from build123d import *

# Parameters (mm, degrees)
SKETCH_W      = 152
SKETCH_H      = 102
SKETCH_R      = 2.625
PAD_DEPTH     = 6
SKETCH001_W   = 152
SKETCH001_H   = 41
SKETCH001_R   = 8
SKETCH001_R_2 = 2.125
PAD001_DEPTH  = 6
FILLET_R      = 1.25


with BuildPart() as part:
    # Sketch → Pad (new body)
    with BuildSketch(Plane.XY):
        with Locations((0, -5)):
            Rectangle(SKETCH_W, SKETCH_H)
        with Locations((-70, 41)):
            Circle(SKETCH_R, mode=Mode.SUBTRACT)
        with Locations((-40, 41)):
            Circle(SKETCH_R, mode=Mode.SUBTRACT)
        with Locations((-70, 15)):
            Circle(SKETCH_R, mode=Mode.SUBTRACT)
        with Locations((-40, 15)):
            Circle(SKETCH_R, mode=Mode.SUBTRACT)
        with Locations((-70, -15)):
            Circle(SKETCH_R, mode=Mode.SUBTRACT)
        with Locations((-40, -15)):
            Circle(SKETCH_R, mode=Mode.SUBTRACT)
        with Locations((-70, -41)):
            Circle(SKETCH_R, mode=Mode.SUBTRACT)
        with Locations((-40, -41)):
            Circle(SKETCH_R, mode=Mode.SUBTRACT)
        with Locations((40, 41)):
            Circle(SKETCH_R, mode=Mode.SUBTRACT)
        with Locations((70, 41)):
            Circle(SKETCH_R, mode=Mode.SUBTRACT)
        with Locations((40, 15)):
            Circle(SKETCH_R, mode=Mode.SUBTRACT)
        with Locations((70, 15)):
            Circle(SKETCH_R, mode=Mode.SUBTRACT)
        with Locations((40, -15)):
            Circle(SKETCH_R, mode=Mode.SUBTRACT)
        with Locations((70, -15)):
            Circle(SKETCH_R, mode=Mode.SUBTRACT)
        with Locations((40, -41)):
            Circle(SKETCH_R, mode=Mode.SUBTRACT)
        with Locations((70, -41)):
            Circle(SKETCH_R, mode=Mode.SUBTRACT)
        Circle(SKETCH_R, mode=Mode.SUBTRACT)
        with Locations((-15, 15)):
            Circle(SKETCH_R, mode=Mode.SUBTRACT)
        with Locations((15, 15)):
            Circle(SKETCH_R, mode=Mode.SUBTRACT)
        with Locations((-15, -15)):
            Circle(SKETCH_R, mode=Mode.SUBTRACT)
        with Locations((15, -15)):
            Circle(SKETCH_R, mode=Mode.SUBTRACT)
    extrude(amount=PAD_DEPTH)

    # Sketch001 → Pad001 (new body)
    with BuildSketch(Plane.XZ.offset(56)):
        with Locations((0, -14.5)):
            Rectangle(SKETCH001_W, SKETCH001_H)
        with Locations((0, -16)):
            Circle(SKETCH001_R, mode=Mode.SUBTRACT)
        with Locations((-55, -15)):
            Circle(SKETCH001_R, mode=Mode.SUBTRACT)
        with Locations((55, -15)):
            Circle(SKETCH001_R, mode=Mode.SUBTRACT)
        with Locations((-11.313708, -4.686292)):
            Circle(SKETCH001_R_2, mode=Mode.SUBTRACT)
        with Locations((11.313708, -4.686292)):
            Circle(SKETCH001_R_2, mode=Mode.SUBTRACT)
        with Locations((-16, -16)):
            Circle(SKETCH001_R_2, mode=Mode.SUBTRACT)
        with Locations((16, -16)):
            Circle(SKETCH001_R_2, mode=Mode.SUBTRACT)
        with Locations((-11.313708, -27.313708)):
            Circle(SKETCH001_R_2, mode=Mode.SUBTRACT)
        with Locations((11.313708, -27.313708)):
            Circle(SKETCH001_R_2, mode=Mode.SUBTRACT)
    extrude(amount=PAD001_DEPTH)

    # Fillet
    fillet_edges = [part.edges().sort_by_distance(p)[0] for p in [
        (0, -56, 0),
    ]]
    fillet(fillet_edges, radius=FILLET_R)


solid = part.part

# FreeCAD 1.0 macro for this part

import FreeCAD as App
import Part
import Sketcher

V = App.Vector
Q = App.Units.Quantity


def edges_at(feature, points):
    """Names of the edges that pass closest to the given points."""
    edges = feature.Shape.Edges
    near = lambda p: min(range(len(edges)), key=lambda i: edges[i].distToShape(Part.Vertex(*p))[0])
    return sorted({f"Edge{near(p) + 1}" for p in points})


def add_polygon(sketch, points):
    """Adds a closed chain of lines whose ends are joined by coincident constraints."""
    first, n = sketch.GeometryCount, len(points)
    for a, b in zip(points, points[1:] + points[:1]):
        sketch.addGeometry(Part.LineSegment(App.Vector(*a, 0), App.Vector(*b, 0)), False)
    for i in range(n):
        sketch.addConstraint(Sketcher.Constraint("Coincident", first + i, 2, first + (i + 1) % n, 1))

doc = App.newDocument("Part")
params = doc.addObject("Spreadsheet::Sheet", "Params")
for row, (alias, value) in enumerate([
    ("sketch1_diameter", "5.25 mm"),
    ("sketch1_width", "152 mm"),
    ("sketch1_height", "102 mm"),
    ("pad1_length", "6 mm"),
    ("sketch2_diameter", "16 mm"),
    ("sketch2_diameter2", "4.25 mm"),
    ("sketch2_width", "152 mm"),
    ("sketch2_height", "41 mm"),
    ("pad2_length", "6 mm"),
    ("fillet_radius", "1.25 mm"),
], start=1):
    params.set(f"A{row}", alias)
    params.set(f"B{row}", "=" + value)
    params.setAlias(f"B{row}", alias)

body = doc.addObject("PartDesign::Body", "Body")

# Sketch on XY plane
sketch1 = doc.addObject("Sketcher::SketchObject", "Sketch")
body.addObject(sketch1)
sketch1.AttachmentSupport = (doc.XY_Plane, [""])
sketch1.MapMode = "FlatFace"
add_polygon(sketch1, [(-76, 46), (-76, -56), (76, -56), (76, 46)])  # lines 0-3
sketch1.addGeometry(Part.Circle(V(-70, -41, 0), V(0, 0, 1), 2.6), False)  # 4
sketch1.addGeometry(Part.Circle(V(-40, -41, 0), V(0, 0, 1), 2.6), False)  # 5
sketch1.addGeometry(Part.Circle(V(-70, -15, 0), V(0, 0, 1), 2.6), False)  # 6
sketch1.addGeometry(Part.Circle(V(-40, -15, 0), V(0, 0, 1), 2.6), False)  # 7
sketch1.addGeometry(Part.Circle(V(-15, -15, 0), V(0, 0, 1), 2.6), False)  # 8
sketch1.addGeometry(Part.Circle(V(40, -41, 0), V(0, 0, 1), 2.6), False)  # 9
sketch1.addGeometry(Part.Circle(V(70, -41, 0), V(0, 0, 1), 2.6), False)  # 10
sketch1.addGeometry(Part.Circle(V(15, -15, 0), V(0, 0, 1), 2.6), False)  # 11
sketch1.addGeometry(Part.Circle(V(40, -15, 0), V(0, 0, 1), 2.6), False)  # 12
sketch1.addGeometry(Part.Circle(V(70, -15, 0), V(0, 0, 1), 2.6), False)  # 13
sketch1.addGeometry(Part.Circle(V(-70, 15, 0), V(0, 0, 1), 2.6), False)  # 14
sketch1.addGeometry(Part.Circle(V(-40, 15, 0), V(0, 0, 1), 2.6), False)  # 15
sketch1.addGeometry(Part.Circle(V(-15, 15, 0), V(0, 0, 1), 2.6), False)  # 16
sketch1.addGeometry(Part.Circle(V(-70, 41, 0), V(0, 0, 1), 2.6), False)  # 17
sketch1.addGeometry(Part.Circle(V(-40, 41, 0), V(0, 0, 1), 2.6), False)  # 18
sketch1.addGeometry(Part.Circle(V(0, 0, 0), V(0, 0, 1), 2.6), False)  # 19
sketch1.addGeometry(Part.Circle(V(15, 15, 0), V(0, 0, 1), 2.6), False)  # 20
sketch1.addGeometry(Part.Circle(V(40, 15, 0), V(0, 0, 1), 2.6), False)  # 21
sketch1.addGeometry(Part.Circle(V(70, 15, 0), V(0, 0, 1), 2.6), False)  # 22
sketch1.addGeometry(Part.Circle(V(40, 41, 0), V(0, 0, 1), 2.6), False)  # 23
sketch1.addGeometry(Part.Circle(V(70, 41, 0), V(0, 0, 1), 2.6), False)  # 24
sketch1.addConstraint(Sketcher.Constraint("Vertical", 0))
sketch1.addConstraint(Sketcher.Constraint("Horizontal", 1))
sketch1.addConstraint(Sketcher.Constraint("Vertical", 2))
sketch1.addConstraint(Sketcher.Constraint("Horizontal", 3))
sketch1.addConstraint(Sketcher.Constraint("Coincident", 19, 3, -1, 1))
sketch1.addConstraint(Sketcher.Constraint("Equal", 4, 5))
sketch1.addConstraint(Sketcher.Constraint("Equal", 5, 6))
sketch1.addConstraint(Sketcher.Constraint("Equal", 6, 7))
sketch1.addConstraint(Sketcher.Constraint("Equal", 7, 8))
sketch1.addConstraint(Sketcher.Constraint("Equal", 8, 9))
sketch1.addConstraint(Sketcher.Constraint("Equal", 9, 10))
sketch1.addConstraint(Sketcher.Constraint("Equal", 10, 11))
sketch1.addConstraint(Sketcher.Constraint("Equal", 11, 12))
sketch1.addConstraint(Sketcher.Constraint("Equal", 12, 13))
sketch1.addConstraint(Sketcher.Constraint("Equal", 13, 14))
sketch1.addConstraint(Sketcher.Constraint("Equal", 14, 15))
sketch1.addConstraint(Sketcher.Constraint("Equal", 15, 16))
sketch1.addConstraint(Sketcher.Constraint("Equal", 16, 17))
sketch1.addConstraint(Sketcher.Constraint("Equal", 17, 18))
sketch1.addConstraint(Sketcher.Constraint("Equal", 18, 19))
sketch1.addConstraint(Sketcher.Constraint("Equal", 19, 20))
sketch1.addConstraint(Sketcher.Constraint("Equal", 20, 21))
sketch1.addConstraint(Sketcher.Constraint("Equal", 21, 22))
sketch1.addConstraint(Sketcher.Constraint("Equal", 22, 23))
sketch1.addConstraint(Sketcher.Constraint("Equal", 23, 24))
sketch1.addConstraint(Sketcher.Constraint("Symmetric", 13, 3, 14, 3, -1, 1))
sketch1.addConstraint(Sketcher.Constraint("Symmetric", 12, 3, 15, 3, -1, 1))
sketch1.addConstraint(Sketcher.Constraint("Symmetric", 11, 3, 16, 3, -1, 1))
sketch1.addConstraint(Sketcher.Constraint("Symmetric", 10, 3, 17, 3, -1, 1))
sketch1.addConstraint(Sketcher.Constraint("Symmetric", 9, 3, 18, 3, -1, 1))
sketch1.addConstraint(Sketcher.Constraint("Symmetric", 8, 3, 20, 3, -1, 1))
sketch1.addConstraint(Sketcher.Constraint("Symmetric", 7, 3, 21, 3, -1, 1))
sketch1.addConstraint(Sketcher.Constraint("Symmetric", 6, 3, 22, 3, -1, 1))
sketch1.addConstraint(Sketcher.Constraint("Symmetric", 5, 3, 23, 3, -1, 1))
sketch1.addConstraint(Sketcher.Constraint("Symmetric", 4, 3, 24, 3, -1, 1))
sketch1.addConstraint(Sketcher.Constraint("Symmetric", 5, 3, 9, 3, -2))
sketch1.addConstraint(Sketcher.Constraint("Symmetric", 4, 3, 10, 3, -2))
sketch1.addConstraint(Sketcher.Constraint("Symmetric", 8, 3, 11, 3, -2))
sketch1.addConstraint(Sketcher.Constraint("Symmetric", 7, 3, 12, 3, -2))
sketch1.addConstraint(Sketcher.Constraint("Symmetric", 6, 3, 13, 3, -2))
sketch1.addConstraint(Sketcher.Constraint("Horizontal", 4, 3, 5, 3))
sketch1.addConstraint(Sketcher.Constraint("Horizontal", 6, 3, 7, 3))
sketch1.addConstraint(Sketcher.Constraint("Horizontal", 7, 3, 8, 3))
sketch1.addConstraint(Sketcher.Constraint("Vertical", 4, 3, 6, 3))
sketch1.addConstraint(Sketcher.Constraint("Vertical", 5, 3, 7, 3))
sketch1.addConstraint(Sketcher.Constraint("Diameter", 4, Q("5.25 mm")))
sketch1.addConstraint(Sketcher.Constraint("DistanceX", 1, 1, 1, 2, Q("152 mm")))
sketch1.addConstraint(Sketcher.Constraint("DistanceY", 0, 2, 0, 1, Q("102 mm")))
sketch1.addConstraint(Sketcher.Constraint("DistanceX", 4, 3, -1, 1, Q("70 mm")))
sketch1.addConstraint(Sketcher.Constraint("DistanceY", 4, 3, -1, 1, Q("41 mm")))
sketch1.addConstraint(Sketcher.Constraint("DistanceX", 5, 3, -1, 1, Q("40 mm")))
sketch1.addConstraint(Sketcher.Constraint("DistanceY", 6, 3, -1, 1, Q("15 mm")))
sketch1.addConstraint(Sketcher.Constraint("DistanceX", 8, 3, -1, 1, Q("15 mm")))
sketch1.addConstraint(Sketcher.Constraint("DistanceX", 0, 2, -1, 1, Q("76 mm")))
sketch1.addConstraint(Sketcher.Constraint("DistanceY", 0, 2, -1, 1, Q("56 mm")))
sketch1.setExpression("Constraints[49]", "Params.sketch1_diameter")
sketch1.setExpression("Constraints[50]", "Params.sketch1_width")
sketch1.setExpression("Constraints[51]", "Params.sketch1_height")
pad1 = doc.addObject("PartDesign::Pad", "Pad")
body.addObject(pad1)
pad1.Profile = sketch1
pad1.setExpression("Length", "Params.pad1_length")

# Sketch on XZ plane
sketch2 = doc.addObject("Sketcher::SketchObject", "Sketch001")
body.addObject(sketch2)
sketch2.AttachmentSupport = (doc.XZ_Plane, [""])
sketch2.MapMode = "FlatFace"
sketch2.AttachmentOffset = App.Placement(V(0, 0, 56), App.Rotation())
add_polygon(sketch2, [(-76, 6), (-76, -35), (76, -35), (76, 6)])  # lines 0-3
sketch2.addGeometry(Part.Circle(V(-11.3, -27.3, 0), V(0, 0, 1), 2.1), False)  # 4
sketch2.addGeometry(Part.Circle(V(11.3, -27.3, 0), V(0, 0, 1), 2.1), False)  # 5
sketch2.addGeometry(Part.Circle(V(-55, -15, 0), V(0, 0, 1), 8), False)  # 6
sketch2.addGeometry(Part.Circle(V(-16, -16, 0), V(0, 0, 1), 2.1), False)  # 7
sketch2.addGeometry(Part.Circle(V(-11.3, -4.7, 0), V(0, 0, 1), 2.1), False)  # 8
sketch2.addGeometry(Part.Circle(V(0, -16, 0), V(0, 0, 1), 8), False)  # 9
sketch2.addGeometry(Part.Circle(V(16, -16, 0), V(0, 0, 1), 2.1), False)  # 10
sketch2.addGeometry(Part.Circle(V(55, -15, 0), V(0, 0, 1), 8), False)  # 11
sketch2.addGeometry(Part.Circle(V(11.3, -4.7, 0), V(0, 0, 1), 2.1), False)  # 12
sketch2.addConstraint(Sketcher.Constraint("Vertical", 0))
sketch2.addConstraint(Sketcher.Constraint("Horizontal", 1))
sketch2.addConstraint(Sketcher.Constraint("Vertical", 2))
sketch2.addConstraint(Sketcher.Constraint("Horizontal", 3))
sketch2.addConstraint(Sketcher.Constraint("Equal", 4, 5))
sketch2.addConstraint(Sketcher.Constraint("Equal", 5, 7))
sketch2.addConstraint(Sketcher.Constraint("Equal", 7, 8))
sketch2.addConstraint(Sketcher.Constraint("Equal", 6, 9))
sketch2.addConstraint(Sketcher.Constraint("Equal", 8, 10))
sketch2.addConstraint(Sketcher.Constraint("Equal", 9, 11))
sketch2.addConstraint(Sketcher.Constraint("Equal", 10, 12))
sketch2.addConstraint(Sketcher.Constraint("Symmetric", 4, 3, 5, 3, -2))
sketch2.addConstraint(Sketcher.Constraint("Symmetric", 7, 3, 10, 3, -2))
sketch2.addConstraint(Sketcher.Constraint("Symmetric", 6, 3, 11, 3, -2))
sketch2.addConstraint(Sketcher.Constraint("Symmetric", 8, 3, 12, 3, -2))
sketch2.addConstraint(Sketcher.Constraint("PointOnObject", 9, 3, -2))
sketch2.addConstraint(Sketcher.Constraint("Horizontal", 7, 3, 9, 3))
sketch2.addConstraint(Sketcher.Constraint("Vertical", 4, 3, 8, 3))
sketch2.addConstraint(Sketcher.Constraint("Diameter", 6, Q("16 mm")))
sketch2.addConstraint(Sketcher.Constraint("Diameter", 4, Q("4.25 mm")))
sketch2.addConstraint(Sketcher.Constraint("DistanceX", 1, 1, 1, 2, Q("152 mm")))
sketch2.addConstraint(Sketcher.Constraint("DistanceY", 0, 2, 0, 1, Q("41 mm")))
sketch2.addConstraint(Sketcher.Constraint("DistanceX", 6, 3, -1, 1, Q("55 mm")))
sketch2.addConstraint(Sketcher.Constraint("DistanceY", 6, 3, -1, 1, Q("15 mm")))
sketch2.addConstraint(Sketcher.Constraint("DistanceX", 7, 3, -1, 1, Q("16 mm")))
sketch2.addConstraint(Sketcher.Constraint("DistanceY", 7, 3, -1, 1, Q("16 mm")))
sketch2.addConstraint(Sketcher.Constraint("DistanceX", 0, 2, -1, 1, Q("76 mm")))
sketch2.addConstraint(Sketcher.Constraint("DistanceY", 0, 2, -1, 1, Q("35 mm")))
sketch2.addConstraint(Sketcher.Constraint("DistanceX", 6, 3, 5, 3, Q("66.313708 mm")))
sketch2.addConstraint(Sketcher.Constraint("DistanceY", 4, 3, -1, 1, Q("27.313708 mm")))
sketch2.addConstraint(Sketcher.Constraint("DistanceY", 8, 3, -1, 1, Q("4.686292 mm")))
sketch2.setExpression("Constraints[22]", "Params.sketch2_diameter")
sketch2.setExpression("Constraints[23]", "Params.sketch2_diameter2")
sketch2.setExpression("Constraints[24]", "Params.sketch2_width")
sketch2.setExpression("Constraints[25]", "Params.sketch2_height")
pad2 = doc.addObject("PartDesign::Pad", "Pad001")
body.addObject(pad2)
pad2.Profile = sketch2
pad2.setExpression("Length", "Params.pad2_length")
doc.recompute()

fillet = doc.addObject("PartDesign::Fillet", "Fillet")
body.addObject(fillet)
fillet.Base = (pad2, edges_at(pad2, [(0, -56, 0)]))
fillet.setExpression("Radius", "Params.fillet_radius")

doc.recompute()
